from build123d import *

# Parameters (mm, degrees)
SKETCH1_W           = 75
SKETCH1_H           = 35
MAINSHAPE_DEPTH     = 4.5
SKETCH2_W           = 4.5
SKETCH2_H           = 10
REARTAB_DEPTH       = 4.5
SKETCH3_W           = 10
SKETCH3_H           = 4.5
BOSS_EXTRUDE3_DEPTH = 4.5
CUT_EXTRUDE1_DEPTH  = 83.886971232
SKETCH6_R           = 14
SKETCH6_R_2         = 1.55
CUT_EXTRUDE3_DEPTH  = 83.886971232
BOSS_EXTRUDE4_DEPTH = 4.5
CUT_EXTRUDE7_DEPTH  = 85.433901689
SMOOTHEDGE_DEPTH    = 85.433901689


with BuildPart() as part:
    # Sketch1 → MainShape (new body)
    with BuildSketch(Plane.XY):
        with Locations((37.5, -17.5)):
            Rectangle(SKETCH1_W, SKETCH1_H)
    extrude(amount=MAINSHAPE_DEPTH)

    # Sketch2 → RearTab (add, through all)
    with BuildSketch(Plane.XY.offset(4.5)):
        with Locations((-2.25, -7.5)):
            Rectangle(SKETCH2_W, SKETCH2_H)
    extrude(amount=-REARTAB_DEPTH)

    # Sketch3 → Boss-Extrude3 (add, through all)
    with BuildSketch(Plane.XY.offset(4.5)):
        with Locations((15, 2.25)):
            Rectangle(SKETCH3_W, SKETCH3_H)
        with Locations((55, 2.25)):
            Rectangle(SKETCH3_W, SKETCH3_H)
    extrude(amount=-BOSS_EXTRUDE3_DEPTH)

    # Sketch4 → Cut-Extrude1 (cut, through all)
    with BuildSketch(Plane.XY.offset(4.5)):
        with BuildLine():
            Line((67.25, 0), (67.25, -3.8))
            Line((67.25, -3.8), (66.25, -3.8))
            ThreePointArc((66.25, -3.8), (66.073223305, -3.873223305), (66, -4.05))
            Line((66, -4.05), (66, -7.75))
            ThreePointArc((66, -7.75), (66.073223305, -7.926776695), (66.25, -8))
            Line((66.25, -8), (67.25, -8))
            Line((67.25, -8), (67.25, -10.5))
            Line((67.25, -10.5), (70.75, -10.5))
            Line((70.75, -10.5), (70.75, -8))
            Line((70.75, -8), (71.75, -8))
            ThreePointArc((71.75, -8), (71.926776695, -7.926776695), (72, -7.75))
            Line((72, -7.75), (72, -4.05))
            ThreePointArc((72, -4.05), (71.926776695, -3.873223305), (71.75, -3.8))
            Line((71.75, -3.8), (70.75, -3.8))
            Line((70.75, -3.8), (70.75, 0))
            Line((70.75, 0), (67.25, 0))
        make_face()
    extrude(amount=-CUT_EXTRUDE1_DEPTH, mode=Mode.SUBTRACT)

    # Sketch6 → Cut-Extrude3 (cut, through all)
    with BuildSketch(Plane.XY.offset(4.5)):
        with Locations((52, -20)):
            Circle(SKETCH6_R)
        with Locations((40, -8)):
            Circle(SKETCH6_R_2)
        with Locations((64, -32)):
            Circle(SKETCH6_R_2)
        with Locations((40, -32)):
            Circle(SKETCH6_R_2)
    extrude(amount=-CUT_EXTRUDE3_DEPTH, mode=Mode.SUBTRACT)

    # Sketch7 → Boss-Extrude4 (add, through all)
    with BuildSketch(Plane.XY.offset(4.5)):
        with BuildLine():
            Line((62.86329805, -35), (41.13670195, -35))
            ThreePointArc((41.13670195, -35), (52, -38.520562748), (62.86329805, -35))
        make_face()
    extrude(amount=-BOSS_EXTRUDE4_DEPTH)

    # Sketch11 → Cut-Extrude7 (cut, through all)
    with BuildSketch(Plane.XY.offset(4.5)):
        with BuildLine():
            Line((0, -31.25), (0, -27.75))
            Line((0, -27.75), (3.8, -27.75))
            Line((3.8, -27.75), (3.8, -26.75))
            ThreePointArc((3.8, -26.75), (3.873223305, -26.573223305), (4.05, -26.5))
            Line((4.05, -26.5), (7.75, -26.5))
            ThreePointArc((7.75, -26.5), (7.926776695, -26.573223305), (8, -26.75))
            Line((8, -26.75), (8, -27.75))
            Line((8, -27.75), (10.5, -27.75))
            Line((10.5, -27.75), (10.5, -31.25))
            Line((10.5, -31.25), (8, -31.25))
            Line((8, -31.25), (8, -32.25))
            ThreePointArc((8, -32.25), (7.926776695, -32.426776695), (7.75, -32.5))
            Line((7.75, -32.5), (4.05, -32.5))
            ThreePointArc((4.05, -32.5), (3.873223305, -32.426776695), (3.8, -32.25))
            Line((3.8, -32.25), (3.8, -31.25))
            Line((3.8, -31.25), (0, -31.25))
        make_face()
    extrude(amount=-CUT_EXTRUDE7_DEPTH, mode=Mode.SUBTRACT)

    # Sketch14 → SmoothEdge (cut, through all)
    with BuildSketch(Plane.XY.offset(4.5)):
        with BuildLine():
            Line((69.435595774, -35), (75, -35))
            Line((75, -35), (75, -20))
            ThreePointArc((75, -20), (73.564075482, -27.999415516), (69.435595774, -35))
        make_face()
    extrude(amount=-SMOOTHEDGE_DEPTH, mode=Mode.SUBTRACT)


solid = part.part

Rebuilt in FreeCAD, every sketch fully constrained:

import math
import FreeCAD as App
import Part
import Sketcher
Q = App.Units.Quantity

doc = App.newDocument("Part")
params = doc.addObject("Spreadsheet::Sheet", "Params")
for row, (alias, value) in enumerate([
    ("sketch1_width", "75 mm"),
    ("sketch1_height", "35 mm"),
    ("pad1_length", "4.5 mm"),
    ("sketch2_height", "10 mm"),
    ("sketch2_width", "4.5 mm"),
    ("pad2_length", "4.5 mm"),
    ("sketch3_width", "10 mm"),
    ("sketch3_height", "4.5 mm"),
    ("pad3_length", "4.5 mm"),
    ("sketch4_width", "1 mm"),
    ("sketch4_radius", "0.25 mm"),
    ("sketch4_width2", "3.5 mm"),
    ("sketch4_height", "3.8 mm"),
    ("sketch4_height2", "3.7 mm"),
    ("sketch5_diameter", "28 mm"),
    ("sketch5_diameter2", "3.1 mm"),
    ("pad4_length", "4.5 mm"),
    ("sketch7_height", "1 mm"),
    ("sketch7_radius", "0.25 mm"),
    ("sketch7_width", "3.8 mm"),
    ("sketch7_width2", "3.7 mm"),
    ("sketch7_width3", "2.5 mm"),
    ("sketch8_radius", "23 mm"),
    ("sketch8_height", "15 mm"),
], start=1):
    params.set(f"A{row}", alias)
    params.set(f"B{row}", "=" + value)
    params.setAlias(f"B{row}", alias)

body = doc.addObject("PartDesign::Body", "Body")

# Sketch on XY plane
sketch1 = body.newObject("Sketcher::SketchObject", "Sketch")
sketch1.AttachmentSupport = (doc.getObject("XY_Plane"), [""])
sketch1.MapMode = "FlatFace"
sketch1.addGeometry([
    Part.LineSegment(App.Vector(0, 0, 0), App.Vector(0, -35, 0)),
    Part.LineSegment(App.Vector(0, -35, 0), App.Vector(75, -35, 0)),
    Part.LineSegment(App.Vector(75, -35, 0), App.Vector(75, 0, 0)),
    Part.LineSegment(App.Vector(75, 0, 0), App.Vector(0, 0, 0)),
], False)
sketch1.addConstraint([
    Sketcher.Constraint("Coincident", 0, 2, 1, 1),
    Sketcher.Constraint("Coincident", 1, 2, 2, 1),
    Sketcher.Constraint("Coincident", 2, 2, 3, 1),
    Sketcher.Constraint("Coincident", 3, 2, 0, 1),
    Sketcher.Constraint("Vertical", 0),
    Sketcher.Constraint("Horizontal", 1),
    Sketcher.Constraint("Vertical", 2),
    Sketcher.Constraint("Horizontal", 3),
    Sketcher.Constraint("Coincident", 3, 2, -1, 1),
    Sketcher.Constraint("DistanceX", 1, 1, 1, 2, Q("75 mm")),
    Sketcher.Constraint("DistanceY", 0, 2, 0, 1, Q("35 mm")),
])
sketch1.setExpression("Constraints[9]", "Params.sketch1_width")
sketch1.setExpression("Constraints[10]", "Params.sketch1_height")
pad1 = body.newObject("PartDesign::Pad", "Pad")
pad1.Profile = sketch1
pad1.setExpression("Length", "Params.pad1_length")

# Sketch on XY plane
sketch2 = body.newObject("Sketcher::SketchObject", "Sketch001")
sketch2.AttachmentSupport = (doc.getObject("XY_Plane"), [""])
sketch2.MapMode = "FlatFace"
sketch2.AttachmentOffset = App.Placement(App.Vector(0, 0, 4.5), App.Rotation())
sketch2.addGeometry([
    Part.LineSegment(App.Vector(-4.5, -2.5, 0), App.Vector(-4.5, -12.5, 0)),
    Part.LineSegment(App.Vector(-4.5, -12.5, 0), App.Vector(0, -12.5, 0)),
    Part.LineSegment(App.Vector(0, -12.5, 0), App.Vector(0, -2.5, 0)),
    Part.LineSegment(App.Vector(0, -2.5, 0), App.Vector(-4.5, -2.5, 0)),
], False)
sketch2.addConstraint([
    Sketcher.Constraint("Coincident", 0, 2, 1, 1),
    Sketcher.Constraint("Coincident", 1, 2, 2, 1),
    Sketcher.Constraint("Coincident", 2, 2, 3, 1),
    Sketcher.Constraint("Coincident", 3, 2, 0, 1),
    Sketcher.Constraint("Vertical", 0),
    Sketcher.Constraint("Horizontal", 1),
    Sketcher.Constraint("Vertical", 2),
    Sketcher.Constraint("Horizontal", 3),
    Sketcher.Constraint("PointOnObject", 1, 2, -2),
    Sketcher.Constraint("DistanceY", 0, 2, 0, 1, Q("10 mm")),
    Sketcher.Constraint("DistanceX", 1, 1, 1, 2, Q("4.5 mm")),
    Sketcher.Constraint("DistanceY", 0, 2, -1, 1, Q("12.5 mm")),
])
sketch2.setExpression("Constraints[9]", "Params.sketch2_height")
sketch2.setExpression("Constraints[10]", "Params.sketch2_width")
pad2 = body.newObject("PartDesign::Pad", "Pad001")
pad2.Profile = sketch2
pad2.setExpression("Length", "Params.pad2_length")
pad2.Reversed = True

# Sketch on XY plane
sketch3 = body.newObject("Sketcher::SketchObject", "Sketch002")
sketch3.AttachmentSupport = (doc.getObject("XY_Plane"), [""])
sketch3.MapMode = "FlatFace"
sketch3.AttachmentOffset = App.Placement(App.Vector(0, 0, 4.5), App.Rotation())
sketch3.addGeometry([
    Part.LineSegment(App.Vector(10, 4.5, 0), App.Vector(10, 0, 0)),  # 0
    Part.LineSegment(App.Vector(10, 0, 0), App.Vector(20, 0, 0)),  # 1
    Part.LineSegment(App.Vector(20, 0, 0), App.Vector(20, 4.5, 0)),  # 2
    Part.LineSegment(App.Vector(20, 4.5, 0), App.Vector(10, 4.5, 0)),  # 3
    Part.LineSegment(App.Vector(50, 4.5, 0), App.Vector(50, 0, 0)),  # 4
    Part.LineSegment(App.Vector(50, 0, 0), App.Vector(60, 0, 0)),  # 5
    Part.LineSegment(App.Vector(60, 0, 0), App.Vector(60, 4.5, 0)),  # 6
    Part.LineSegment(App.Vector(60, 4.5, 0), App.Vector(50, 4.5, 0)),  # 7
], False)
sketch3.addConstraint([
    Sketcher.Constraint("Coincident", 0, 2, 1, 1),
    Sketcher.Constraint("Coincident", 1, 2, 2, 1),
    Sketcher.Constraint("Coincident", 2, 2, 3, 1),
    Sketcher.Constraint("Coincident", 3, 2, 0, 1),
    Sketcher.Constraint("Coincident", 4, 2, 5, 1),
    Sketcher.Constraint("Coincident", 5, 2, 6, 1),
    Sketcher.Constraint("Coincident", 6, 2, 7, 1),
    Sketcher.Constraint("Coincident", 7, 2, 4, 1),
    Sketcher.Constraint("Vertical", 0),
    Sketcher.Constraint("Horizontal", 1),
    Sketcher.Constraint("Vertical", 2),
    Sketcher.Constraint("Horizontal", 3),
    Sketcher.Constraint("Vertical", 4),
    Sketcher.Constraint("Horizontal", 5),
    Sketcher.Constraint("Vertical", 6),
    Sketcher.Constraint("Horizontal", 7),
    Sketcher.Constraint("PointOnObject", 0, 2, -1),
    Sketcher.Constraint("PointOnObject", 4, 2, -1),
    Sketcher.Constraint("Horizontal", 3, 2, 6, 2),
    Sketcher.Constraint("Equal", 3, 5),
    Sketcher.Constraint("DistanceX", 1, 1, 1, 2, Q("10 mm")),
    Sketcher.Constraint("DistanceY", 0, 2, 0, 1, Q("4.5 mm")),
    Sketcher.Constraint("DistanceX", -1, 1, 0, 2, Q("10 mm")),
    Sketcher.Constraint("DistanceX", -1, 1, 4, 2, Q("50 mm")),
])
sketch3.setExpression("Constraints[20]", "Params.sketch3_width")
sketch3.setExpression("Constraints[21]", "Params.sketch3_height")
pad3 = body.newObject("PartDesign::Pad", "Pad002")
pad3.Profile = sketch3
pad3.setExpression("Length", "Params.pad3_length")
pad3.Reversed = True

# Sketch on XY plane
sketch4 = body.newObject("Sketcher::SketchObject", "Sketch003")
sketch4.AttachmentSupport = (doc.getObject("XY_Plane"), [""])
sketch4.MapMode = "FlatFace"
sketch4.AttachmentOffset = App.Placement(App.Vector(0, 0, 4.5), App.Rotation())
sketch4.addGeometry([
    Part.LineSegment(App.Vector(67.25, 0, 0), App.Vector(67.25, -3.8, 0)),  # 0
    Part.LineSegment(App.Vector(67.25, -3.8, 0), App.Vector(66.25, -3.8, 0)),  # 1
    Part.ArcOfCircle(Part.Circle(App.Vector(66.25, -4.05, 0), App.Vector(0, 0, 1), 0.25), math.radians(90), math.radians(180)),  # 2
    Part.LineSegment(App.Vector(66, -4.05, 0), App.Vector(66, -7.75, 0)),  # 3
    Part.ArcOfCircle(Part.Circle(App.Vector(66.25, -7.75, 0), App.Vector(0, 0, 1), 0.25), math.radians(-180), math.radians(-90)),  # 4
    Part.LineSegment(App.Vector(66.25, -8, 0), App.Vector(67.25, -8, 0)),  # 5
    Part.LineSegment(App.Vector(67.25, -8, 0), App.Vector(67.25, -10.5, 0)),  # 6
    Part.LineSegment(App.Vector(67.25, -10.5, 0), App.Vector(70.75, -10.5, 0)),  # 7
    Part.LineSegment(App.Vector(70.75, -10.5, 0), App.Vector(70.75, -8, 0)),  # 8
    Part.LineSegment(App.Vector(70.75, -8, 0), App.Vector(71.75, -8, 0)),  # 9
    Part.ArcOfCircle(Part.Circle(App.Vector(71.75, -7.75, 0), App.Vector(0, 0, 1), 0.25), math.radians(-90), math.radians(0)),  # 10
    Part.LineSegment(App.Vector(72, -7.75, 0), App.Vector(72, -4.05, 0)),  # 11
    Part.ArcOfCircle(Part.Circle(App.Vector(71.75, -4.05, 0), App.Vector(0, 0, 1), 0.25), math.radians(0), math.radians(90)),  # 12
    Part.LineSegment(App.Vector(71.75, -3.8, 0), App.Vector(70.75, -3.8, 0)),  # 13
    Part.LineSegment(App.Vector(70.75, -3.8, 0), App.Vector(70.75, 0, 0)),  # 14
    Part.LineSegment(App.Vector(70.75, 0, 0), App.Vector(67.25, 0, 0)),  # 15
], False)
sketch4.addConstraint([
    Sketcher.Constraint("Coincident", 0, 2, 1, 1),
    Sketcher.Constraint("Tangent", 1, 2, 2, 1),
    Sketcher.Constraint("Tangent", 2, 2, 3, 1),
    Sketcher.Constraint("Tangent", 3, 2, 4, 1),
    Sketcher.Constraint("Tangent", 4, 2, 5, 1),
    Sketcher.Constraint("Coincident", 5, 2, 6, 1),
    Sketcher.Constraint("Coincident", 6, 2, 7, 1),
    Sketcher.Constraint("Coincident", 7, 2, 8, 1),
    Sketcher.Constraint("Coincident", 8, 2, 9, 1),
    Sketcher.Constraint("Tangent", 9, 2, 10, 1),
    Sketcher.Constraint("Tangent", 10, 2, 11, 1),
    Sketcher.Constraint("Tangent", 11, 2, 12, 1),
    Sketcher.Constraint("Tangent", 12, 2, 13, 1),
    Sketcher.Constraint("Coincident", 13, 2, 14, 1),
    Sketcher.Constraint("Coincident", 14, 2, 15, 1),
    Sketcher.Constraint("Coincident", 15, 2, 0, 1),
    Sketcher.Constraint("Vertical", 0),
    Sketcher.Constraint("Horizontal", 1),
    Sketcher.Constraint("Vertical", 3),
    Sketcher.Constraint("Horizontal", 5),
    Sketcher.Constraint("Vertical", 6),
    Sketcher.Constraint("Horizontal", 7),
    Sketcher.Constraint("Vertical", 8),
    Sketcher.Constraint("Horizontal", 9),
    Sketcher.Constraint("Vertical", 11),
    Sketcher.Constraint("Horizontal", 13),
    Sketcher.Constraint("Vertical", 14),
    Sketcher.Constraint("Horizontal", 15),
    Sketcher.Constraint("Equal", 2, 4),
    Sketcher.Constraint("Equal", 4, 10),
    Sketcher.Constraint("Equal", 10, 12),
    Sketcher.Constraint("PointOnObject", 14, 2, -1),
    Sketcher.Constraint("Horizontal", 4, 3, 10, 3),
    Sketcher.Constraint("Horizontal", 2, 3, 12, 3),
    Sketcher.Constraint("Vertical", 0, 2, 5, 2),
    Sketcher.Constraint("Vertical", 8, 2, 13, 2),
    Sketcher.Constraint("Equal", 5, 9),
    Sketcher.Constraint("DistanceX", 1, 2, 1, 1, Q("1 mm")),
    Sketcher.Constraint("Radius", 2, Q("0.25 mm")),
    Sketcher.Constraint("DistanceX", 7, 1, 7, 2, Q("3.5 mm")),
    Sketcher.Constraint("DistanceY", 0, 2, 0, 1, Q("3.8 mm")),
    Sketcher.Constraint("DistanceY", 3, 2, 3, 1, Q("3.7 mm")),
    Sketcher.Constraint("DistanceY", 6, 2, 6, 1, Q("2.5 mm")),
    Sketcher.Constraint("DistanceX", -1, 1, 2, 2, Q("66 mm")),
])
sketch4.setExpression("Constraints[37]", "Params.sketch4_width")
sketch4.setExpression("Constraints[38]", "Params.sketch4_radius")
sketch4.setExpression("Constraints[39]", "Params.sketch4_width2")
sketch4.setExpression("Constraints[40]", "Params.sketch4_height")
sketch4.setExpression("Constraints[41]", "Params.sketch4_height2")
pocket1 = body.newObject("PartDesign::Pocket", "Pocket")
pocket1.Profile = sketch4
pocket1.Type = "ThroughAll"

# Sketch on XY plane
sketch5 = body.newObject("Sketcher::SketchObject", "Sketch004")
sketch5.AttachmentSupport = (doc.getObject("XY_Plane"), [""])
sketch5.MapMode = "FlatFace"
sketch5.AttachmentOffset = App.Placement(App.Vector(0, 0, 4.5), App.Rotation())
sketch5.addGeometry([
    Part.Circle(App.Vector(52, -20, 0), App.Vector(0, 0, 1), 14),
    Part.Circle(App.Vector(40, -8, 0), App.Vector(0, 0, 1), 1.6),
    Part.Circle(App.Vector(64, -32, 0), App.Vector(0, 0, 1), 1.6),
    Part.Circle(App.Vector(40, -32, 0), App.Vector(0, 0, 1), 1.6),
], False)
sketch5.addConstraint([
    Sketcher.Constraint("Equal", 1, 2),
    Sketcher.Constraint("Equal", 2, 3),
    Sketcher.Constraint("Horizontal", 2, 3, 3, 3),
    Sketcher.Constraint("Vertical", 1, 3, 3, 3),
    Sketcher.Constraint("Diameter", 0, Q("28 mm")),
    Sketcher.Constraint("Diameter", 1, Q("3.1 mm")),
    Sketcher.Constraint("DistanceX", -1, 1, 0, 3, Q("52 mm")),
    Sketcher.Constraint("DistanceY", 0, 3, -1, 1, Q("20 mm")),
    Sketcher.Constraint("DistanceX", -1, 1, 1, 3, Q("40 mm")),
    Sketcher.Constraint("DistanceY", 1, 3, -1, 1, Q("8 mm")),
    Sketcher.Constraint("DistanceX", -1, 1, 2, 3, Q("64 mm")),
    Sketcher.Constraint("DistanceY", 2, 3, -1, 1, Q("32 mm")),
])
sketch5.setExpression("Constraints[4]", "Params.sketch5_diameter")
sketch5.setExpression("Constraints[5]", "Params.sketch5_diameter2")
pocket2 = body.newObject("PartDesign::Pocket", "Pocket001")
pocket2.Profile = sketch5
pocket2.Type = "ThroughAll"

# Sketch on XY plane
sketch6 = body.newObject("Sketcher::SketchObject", "Sketch005")
sketch6.AttachmentSupport = (doc.getObject("XY_Plane"), [""])
sketch6.MapMode = "FlatFace"
sketch6.AttachmentOffset = App.Placement(App.Vector(0, 0, 4.5), App.Rotation())
sketch6.addGeometry([
    Part.LineSegment(App.Vector(63, -35, 0), App.Vector(41, -35, 0)),
    Part.ArcOfCircle(Part.Circle(App.Vector(52, -20, 0), App.Vector(0, 0, 1), 19), math.radians(-126), math.radians(-54)),
], False)
sketch6.addConstraint([
    Sketcher.Constraint("Coincident", 0, 1, 1, 2),
    Sketcher.Constraint("Coincident", 1, 1, 0, 2),
    Sketcher.Constraint("Horizontal", 0),
    Sketcher.Constraint("DistanceX", -1, 1, 1, 3, Q("52 mm")),
    Sketcher.Constraint("DistanceY", 1, 3, -1, 1, Q("20 mm")),
    Sketcher.Constraint("DistanceY", 0, 1, -1, 1, Q("35 mm")),
    Sketcher.Constraint("Radius", 1, Q("18.520563 mm")),
])
pad4 = body.newObject("PartDesign::Pad", "Pad003")
pad4.Profile = sketch6
pad4.setExpression("Length", "Params.pad4_length")
pad4.Reversed = True

# Sketch on XY plane
sketch7 = body.newObject("Sketcher::SketchObject", "Sketch006")
sketch7.AttachmentSupport = (doc.getObject("XY_Plane"), [""])
sketch7.MapMode = "FlatFace"
sketch7.AttachmentOffset = App.Placement(App.Vector(0, 0, 4.5), App.Rotation())
sketch7.addGeometry([
    Part.LineSegment(App.Vector(0, -27.75, 0), App.Vector(0, -31.25, 0)),  # 0
    Part.LineSegment(App.Vector(0, -31.25, 0), App.Vector(3.8, -31.25, 0)),  # 1
    Part.LineSegment(App.Vector(3.8, -31.25, 0), App.Vector(3.8, -32.25, 0)),  # 2
    Part.ArcOfCircle(Part.Circle(App.Vector(4.05, -32.25, 0), App.Vector(0, 0, 1), 0.25), math.radians(-180), math.radians(-90)),  # 3
    Part.LineSegment(App.Vector(4.05, -32.5, 0), App.Vector(7.75, -32.5, 0)),  # 4
    Part.ArcOfCircle(Part.Circle(App.Vector(7.75, -32.25, 0), App.Vector(0, 0, 1), 0.25), math.radians(-90), math.radians(0)),  # 5
    Part.LineSegment(App.Vector(8, -32.25, 0), App.Vector(8, -31.25, 0)),  # 6
    Part.LineSegment(App.Vector(8, -31.25, 0), App.Vector(10.5, -31.25, 0)),  # 7
    Part.LineSegment(App.Vector(10.5, -31.25, 0), App.Vector(10.5, -27.75, 0)),  # 8
    Part.LineSegment(App.Vector(10.5, -27.75, 0), App.Vector(8, -27.75, 0)),  # 9
    Part.LineSegment(App.Vector(8, -27.75, 0), App.Vector(8, -26.75, 0)),  # 10
    Part.ArcOfCircle(Part.Circle(App.Vector(7.75, -26.75, 0), App.Vector(0, 0, 1), 0.25), math.radians(0), math.radians(90)),  # 11
    Part.LineSegment(App.Vector(7.75, -26.5, 0), App.Vector(4.05, -26.5, 0)),  # 12
    Part.ArcOfCircle(Part.Circle(App.Vector(4.05, -26.75, 0), App.Vector(0, 0, 1), 0.25), math.radians(90), math.radians(180)),  # 13
    Part.LineSegment(App.Vector(3.8, -26.75, 0), App.Vector(3.8, -27.75, 0)),  # 14
    Part.LineSegment(App.Vector(3.8, -27.75, 0), App.Vector(0, -27.75, 0)),  # 15
], False)
sketch7.addConstraint([
    Sketcher.Constraint("Coincident", 0, 2, 1, 1),
    Sketcher.Constraint("Coincident", 1, 2, 2, 1),
    Sketcher.Constraint("Tangent", 2, 2, 3, 1),
    Sketcher.Constraint("Tangent", 3, 2, 4, 1),
    Sketcher.Constraint("Tangent", 4, 2, 5, 1),
    Sketcher.Constraint("Tangent", 5, 2, 6, 1),
    Sketcher.Constraint("Coincident", 6, 2, 7, 1),
    Sketcher.Constraint("Coincident", 7, 2, 8, 1),
    Sketcher.Constraint("Coincident", 8, 2, 9, 1),
    Sketcher.Constraint("Coincident", 9, 2, 10, 1),
    Sketcher.Constraint("Tangent", 10, 2, 11, 1),
    Sketcher.Constraint("Tangent", 11, 2, 12, 1),
    Sketcher.Constraint("Tangent", 12, 2, 13, 1),
    Sketcher.Constraint("Tangent", 13, 2, 14, 1),
    Sketcher.Constraint("Coincident", 14, 2, 15, 1),
    Sketcher.Constraint("Coincident", 15, 2, 0, 1),
    Sketcher.Constraint("Vertical", 0),
    Sketcher.Constraint("Horizontal", 1),
    Sketcher.Constraint("Vertical", 2),
    Sketcher.Constraint("Horizontal", 4),
    Sketcher.Constraint("Vertical", 6),
    Sketcher.Constraint("Horizontal", 7),
    Sketcher.Constraint("Vertical", 8),
    Sketcher.Constraint("Horizontal", 9),
    Sketcher.Constraint("Vertical", 10),
    Sketcher.Constraint("Horizontal", 12),
    Sketcher.Constraint("Vertical", 14),
    Sketcher.Constraint("Horizontal", 15),
    Sketcher.Constraint("Equal", 3, 5),
    Sketcher.Constraint("Equal", 5, 11),
    Sketcher.Constraint("Equal", 11, 13),
    Sketcher.Constraint("PointOnObject", 0, 2, -2),
    Sketcher.Constraint("Horizontal", 1, 2, 6, 2),
    Sketcher.Constraint("Horizontal", 9, 2, 14, 2),
    Sketcher.Constraint("Vertical", 5, 3, 11, 3),
    Sketcher.Constraint("Vertical", 3, 3, 13, 3),
    Sketcher.Constraint("Equal", 6, 10),
    Sketcher.Constraint("DistanceY", 2, 2, 2, 1, Q("1 mm")),
    Sketcher.Constraint("Radius", 3, Q("0.25 mm")),
    Sketcher.Constraint("DistanceX", 1, 1, 1, 2, Q("3.8 mm")),
    Sketcher.Constraint("DistanceX", 4, 1, 4, 2, Q("3.7 mm")),
    Sketcher.Constraint("DistanceX", 7, 1, 7, 2, Q("2.5 mm")),
    Sketcher.Constraint("DistanceY", 0, 2, 0, 1, Q("3.5 mm")),
    Sketcher.Constraint("DistanceY", 3, 2, -1, 1, Q("32.5 mm")),
])
sketch7.setExpression("Constraints[37]", "Params.sketch7_height")
sketch7.setExpression("Constraints[38]", "Params.sketch7_radius")
sketch7.setExpression("Constraints[39]", "Params.sketch7_width")
sketch7.setExpression("Constraints[40]", "Params.sketch7_width2")
sketch7.setExpression("Constraints[41]", "Params.sketch7_width3")
pocket3 = body.newObject("PartDesign::Pocket", "Pocket002")
pocket3.Profile = sketch7
pocket3.Type = "ThroughAll"

# Sketch on XY plane
sketch8 = body.newObject("Sketcher::SketchObject", "Sketch007")
sketch8.AttachmentSupport = (doc.getObject("XY_Plane"), [""])
sketch8.MapMode = "FlatFace"
sketch8.AttachmentOffset = App.Placement(App.Vector(0, 0, 4.5), App.Rotation())
sketch8.addGeometry([
    Part.LineSegment(App.Vector(69, -35, 0), App.Vector(75, -35, 0)),
    Part.LineSegment(App.Vector(75, -35, 0), App.Vector(75, -20, 0)),
    Part.ArcOfCircle(Part.Circle(App.Vector(52, -20, 0), App.Vector(0, 0, 1), 23), math.radians(-41), math.radians(0)),
], False)
sketch8.addConstraint([
    Sketcher.Constraint("Coincident", 0, 2, 1, 1),
    Sketcher.Constraint("Tangent", 1, 2, 2, 2),
    Sketcher.Constraint("Coincident", 2, 1, 0, 1),
    Sketcher.Constraint("Horizontal", 0),
    Sketcher.Constraint("Vertical", 1),
    Sketcher.Constraint("Radius", 2, Q("23 mm")),
    Sketcher.Constraint("DistanceY", 1, 1, 1, 2, Q("15 mm")),
    Sketcher.Constraint("DistanceX", -1, 1, 2, 3, Q("52 mm")),
    Sketcher.Constraint("DistanceY", 2, 3, -1, 1, Q("20 mm")),
])
sketch8.setExpression("Constraints[5]", "Params.sketch8_radius")
sketch8.setExpression("Constraints[6]", "Params.sketch8_height")
pocket4 = body.newObject("PartDesign::Pocket", "Pocket003")
pocket4.Profile = sketch8
pocket4.Type = "ThroughAll"

doc.recompute()
